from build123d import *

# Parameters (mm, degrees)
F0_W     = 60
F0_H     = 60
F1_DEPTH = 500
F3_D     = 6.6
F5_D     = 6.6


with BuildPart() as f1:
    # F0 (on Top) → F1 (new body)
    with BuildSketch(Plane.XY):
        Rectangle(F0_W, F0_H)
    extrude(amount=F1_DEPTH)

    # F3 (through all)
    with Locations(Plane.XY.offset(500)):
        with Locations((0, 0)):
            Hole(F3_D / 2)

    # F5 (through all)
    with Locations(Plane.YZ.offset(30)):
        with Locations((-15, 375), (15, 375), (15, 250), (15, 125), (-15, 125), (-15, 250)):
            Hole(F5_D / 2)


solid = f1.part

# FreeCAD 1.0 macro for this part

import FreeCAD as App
import Part
import Sketcher
from FreeCAD import Vector
Q = App.Units.Quantity


def add_polygon(sketch, points):
    """Adds a closed chain of lines whose ends are joined by coincident constraints."""
    first, n = sketch.GeometryCount, len(points)
    for a, b in zip(points, points[1:] + points[:1]):
        sketch.addGeometry(Part.LineSegment(App.Vector(*a, 0), App.Vector(*b, 0)), False)
    for i in range(n):
        sketch.addConstraint(Sketcher.Constraint("Coincident", first + i, 2, first + (i + 1) % n, 1))

doc = App.newDocument("Part")
params = doc.addObject("Spreadsheet::Sheet", "Params")
for row, (alias, value) in enumerate([
    ("sketch1_width", "60 mm"),
    ("pad1_length", "500 mm"),
    ("sketch2_diameter", "6.6 mm"),
    ("hole_diameter", "6.6 mm"),
    ("sketch3_diameter", "6.6 mm"),
    ("hole2_diameter", "6.6 mm"),
], start=1):
    params.set(f"A{row}", alias)
    params.set(f"B{row}", "=" + value)
    params.setAlias(f"B{row}", alias)

body = doc.addObject("PartDesign::Body", "Body")

# Sketch on XY plane
sketch1 = body.newObject("Sketcher::SketchObject", "Sketch")
sketch1.AttachmentSupport = (doc.getObject("XY_Plane"), [""])
sketch1.MapMode = "FlatFace"
add_polygon(sketch1, [(-30, 30), (-30, -30), (30, -30), (30, 30)])  # lines 0-3
sketch1.addConstraint(Sketcher.Constraint("Vertical", 0))
sketch1.addConstraint(Sketcher.Constraint("Horizontal", 1))
sketch1.addConstraint(Sketcher.Constraint("Vertical", 2))
sketch1.addConstraint(Sketcher.Constraint("Horizontal", 3))
sketch1.addConstraint(Sketcher.Constraint("Symmetric", 0, 2, 2, 2, -1, 1))
sketch1.addConstraint(Sketcher.Constraint("Equal", 3, 0))
sketch1.addConstraint(Sketcher.Constraint("DistanceX", 1, 1, 1, 2, Q("60 mm")))
sketch1.setExpression("Constraints[10]", "Params.sketch1_width")
pad1 = body.newObject("PartDesign::Pad", "Pad")
pad1.Profile = sketch1
pad1.setExpression("Length", "Params.pad1_length")

# Sketch on XY plane
sketch2 = body.newObject("Sketcher::SketchObject", "Sketch001")
sketch2.AttachmentSupport = (doc.getObject("XY_Plane"), [""])
sketch2.MapMode = "FlatFace"
sketch2.AttachmentOffset = App.Placement(Vector(0, 0, 500), App.Rotation())
sketch2.addGeometry(Part.Circle(Vector(0, 0, 0), Vector(0, 0, 1), 3.3), False)
sketch2.addConstraint(Sketcher.Constraint("Coincident", 0, 3, -1, 1))
sketch2.addConstraint(Sketcher.Constraint("Diameter", 0, Q("6.6 mm")))
sketch2.setExpression("Constraints[1]", "Params.sketch2_diameter")
doc.recompute()
hole = body.newObject("PartDesign::Hole", "Hole")
hole.Profile = sketch2
hole.ThreadType = "None"
hole.setExpression("Diameter", "Params.hole_diameter")
hole.DepthType = "ThroughAll"

# Sketch on YZ plane
sketch3 = body.newObject("Sketcher::SketchObject", "Sketch002")
sketch3.AttachmentSupport = (doc.getObject("YZ_Plane"), [""])
sketch3.MapMode = "FlatFace"
sketch3.AttachmentOffset = App.Placement(Vector(0, 0, 30), App.Rotation())
sketch3.addGeometry(Part.Circle(Vector(-15, 375, 0), Vector(0, 0, 1), 3.3), False)
sketch3.addGeometry(Part.Circle(Vector(15, 375, 0), Vector(0, 0, 1), 3.3), False)
sketch3.addGeometry(Part.Circle(Vector(15, 250, 0), Vector(0, 0, 1), 3.3), False)
sketch3.addGeometry(Part.Circle(Vector(15, 125, 0), Vector(0, 0, 1), 3.3), False)
sketch3.addGeometry(Part.Circle(Vector(-15, 125, 0), Vector(0, 0, 1), 3.3), False)
sketch3.addGeometry(Part.Circle(Vector(-15, 250, 0), Vector(0, 0, 1), 3.3), False)
sketch3.addConstraint(Sketcher.Constraint("Equal", 0, 1))
sketch3.addConstraint(Sketcher.Constraint("Equal", 1, 2))
sketch3.addConstraint(Sketcher.Constraint("Equal", 2, 3))
sketch3.addConstraint(Sketcher.Constraint("Equal", 3, 4))
sketch3.addConstraint(Sketcher.Constraint("Equal", 4, 5))
sketch3.addConstraint(Sketcher.Constraint("Symmetric", 0, 3, 1, 3, -2))
sketch3.addConstraint(Sketcher.Constraint("Symmetric", 3, 3, 4, 3, -2))
sketch3.addConstraint(Sketcher.Constraint("Symmetric", 2, 3, 5, 3, -2))
sketch3.addConstraint(Sketcher.Constraint("Vertical", 1, 3, 2, 3))
sketch3.addConstraint(Sketcher.Constraint("Vertical", 2, 3, 3, 3))
sketch3.addConstraint(Sketcher.Constraint("Diameter", 0, Q("6.6 mm")))
sketch3.addConstraint(Sketcher.Constraint("DistanceX", 0, 3, -1, 1, Q("15 mm")))
sketch3.addConstraint(Sketcher.Constraint("DistanceY", -1, 1, 0, 3, Q("375 mm")))
sketch3.addConstraint(Sketcher.Constraint("DistanceY", -1, 1, 2, 3, Q("250 mm")))
sketch3.addConstraint(Sketcher.Constraint("DistanceY", -1, 1, 3, 3, Q("125 mm")))
sketch3.setExpression("Constraints[10]", "Params.sketch3_diameter")
doc.recompute()
hole2 = body.newObject("PartDesign::Hole", "Hole001")
hole2.Profile = sketch3
hole2.ThreadType = "None"
hole2.setExpression("Diameter", "Params.hole2_diameter")
hole2.DepthType = "ThroughAll"

doc.recompute()
